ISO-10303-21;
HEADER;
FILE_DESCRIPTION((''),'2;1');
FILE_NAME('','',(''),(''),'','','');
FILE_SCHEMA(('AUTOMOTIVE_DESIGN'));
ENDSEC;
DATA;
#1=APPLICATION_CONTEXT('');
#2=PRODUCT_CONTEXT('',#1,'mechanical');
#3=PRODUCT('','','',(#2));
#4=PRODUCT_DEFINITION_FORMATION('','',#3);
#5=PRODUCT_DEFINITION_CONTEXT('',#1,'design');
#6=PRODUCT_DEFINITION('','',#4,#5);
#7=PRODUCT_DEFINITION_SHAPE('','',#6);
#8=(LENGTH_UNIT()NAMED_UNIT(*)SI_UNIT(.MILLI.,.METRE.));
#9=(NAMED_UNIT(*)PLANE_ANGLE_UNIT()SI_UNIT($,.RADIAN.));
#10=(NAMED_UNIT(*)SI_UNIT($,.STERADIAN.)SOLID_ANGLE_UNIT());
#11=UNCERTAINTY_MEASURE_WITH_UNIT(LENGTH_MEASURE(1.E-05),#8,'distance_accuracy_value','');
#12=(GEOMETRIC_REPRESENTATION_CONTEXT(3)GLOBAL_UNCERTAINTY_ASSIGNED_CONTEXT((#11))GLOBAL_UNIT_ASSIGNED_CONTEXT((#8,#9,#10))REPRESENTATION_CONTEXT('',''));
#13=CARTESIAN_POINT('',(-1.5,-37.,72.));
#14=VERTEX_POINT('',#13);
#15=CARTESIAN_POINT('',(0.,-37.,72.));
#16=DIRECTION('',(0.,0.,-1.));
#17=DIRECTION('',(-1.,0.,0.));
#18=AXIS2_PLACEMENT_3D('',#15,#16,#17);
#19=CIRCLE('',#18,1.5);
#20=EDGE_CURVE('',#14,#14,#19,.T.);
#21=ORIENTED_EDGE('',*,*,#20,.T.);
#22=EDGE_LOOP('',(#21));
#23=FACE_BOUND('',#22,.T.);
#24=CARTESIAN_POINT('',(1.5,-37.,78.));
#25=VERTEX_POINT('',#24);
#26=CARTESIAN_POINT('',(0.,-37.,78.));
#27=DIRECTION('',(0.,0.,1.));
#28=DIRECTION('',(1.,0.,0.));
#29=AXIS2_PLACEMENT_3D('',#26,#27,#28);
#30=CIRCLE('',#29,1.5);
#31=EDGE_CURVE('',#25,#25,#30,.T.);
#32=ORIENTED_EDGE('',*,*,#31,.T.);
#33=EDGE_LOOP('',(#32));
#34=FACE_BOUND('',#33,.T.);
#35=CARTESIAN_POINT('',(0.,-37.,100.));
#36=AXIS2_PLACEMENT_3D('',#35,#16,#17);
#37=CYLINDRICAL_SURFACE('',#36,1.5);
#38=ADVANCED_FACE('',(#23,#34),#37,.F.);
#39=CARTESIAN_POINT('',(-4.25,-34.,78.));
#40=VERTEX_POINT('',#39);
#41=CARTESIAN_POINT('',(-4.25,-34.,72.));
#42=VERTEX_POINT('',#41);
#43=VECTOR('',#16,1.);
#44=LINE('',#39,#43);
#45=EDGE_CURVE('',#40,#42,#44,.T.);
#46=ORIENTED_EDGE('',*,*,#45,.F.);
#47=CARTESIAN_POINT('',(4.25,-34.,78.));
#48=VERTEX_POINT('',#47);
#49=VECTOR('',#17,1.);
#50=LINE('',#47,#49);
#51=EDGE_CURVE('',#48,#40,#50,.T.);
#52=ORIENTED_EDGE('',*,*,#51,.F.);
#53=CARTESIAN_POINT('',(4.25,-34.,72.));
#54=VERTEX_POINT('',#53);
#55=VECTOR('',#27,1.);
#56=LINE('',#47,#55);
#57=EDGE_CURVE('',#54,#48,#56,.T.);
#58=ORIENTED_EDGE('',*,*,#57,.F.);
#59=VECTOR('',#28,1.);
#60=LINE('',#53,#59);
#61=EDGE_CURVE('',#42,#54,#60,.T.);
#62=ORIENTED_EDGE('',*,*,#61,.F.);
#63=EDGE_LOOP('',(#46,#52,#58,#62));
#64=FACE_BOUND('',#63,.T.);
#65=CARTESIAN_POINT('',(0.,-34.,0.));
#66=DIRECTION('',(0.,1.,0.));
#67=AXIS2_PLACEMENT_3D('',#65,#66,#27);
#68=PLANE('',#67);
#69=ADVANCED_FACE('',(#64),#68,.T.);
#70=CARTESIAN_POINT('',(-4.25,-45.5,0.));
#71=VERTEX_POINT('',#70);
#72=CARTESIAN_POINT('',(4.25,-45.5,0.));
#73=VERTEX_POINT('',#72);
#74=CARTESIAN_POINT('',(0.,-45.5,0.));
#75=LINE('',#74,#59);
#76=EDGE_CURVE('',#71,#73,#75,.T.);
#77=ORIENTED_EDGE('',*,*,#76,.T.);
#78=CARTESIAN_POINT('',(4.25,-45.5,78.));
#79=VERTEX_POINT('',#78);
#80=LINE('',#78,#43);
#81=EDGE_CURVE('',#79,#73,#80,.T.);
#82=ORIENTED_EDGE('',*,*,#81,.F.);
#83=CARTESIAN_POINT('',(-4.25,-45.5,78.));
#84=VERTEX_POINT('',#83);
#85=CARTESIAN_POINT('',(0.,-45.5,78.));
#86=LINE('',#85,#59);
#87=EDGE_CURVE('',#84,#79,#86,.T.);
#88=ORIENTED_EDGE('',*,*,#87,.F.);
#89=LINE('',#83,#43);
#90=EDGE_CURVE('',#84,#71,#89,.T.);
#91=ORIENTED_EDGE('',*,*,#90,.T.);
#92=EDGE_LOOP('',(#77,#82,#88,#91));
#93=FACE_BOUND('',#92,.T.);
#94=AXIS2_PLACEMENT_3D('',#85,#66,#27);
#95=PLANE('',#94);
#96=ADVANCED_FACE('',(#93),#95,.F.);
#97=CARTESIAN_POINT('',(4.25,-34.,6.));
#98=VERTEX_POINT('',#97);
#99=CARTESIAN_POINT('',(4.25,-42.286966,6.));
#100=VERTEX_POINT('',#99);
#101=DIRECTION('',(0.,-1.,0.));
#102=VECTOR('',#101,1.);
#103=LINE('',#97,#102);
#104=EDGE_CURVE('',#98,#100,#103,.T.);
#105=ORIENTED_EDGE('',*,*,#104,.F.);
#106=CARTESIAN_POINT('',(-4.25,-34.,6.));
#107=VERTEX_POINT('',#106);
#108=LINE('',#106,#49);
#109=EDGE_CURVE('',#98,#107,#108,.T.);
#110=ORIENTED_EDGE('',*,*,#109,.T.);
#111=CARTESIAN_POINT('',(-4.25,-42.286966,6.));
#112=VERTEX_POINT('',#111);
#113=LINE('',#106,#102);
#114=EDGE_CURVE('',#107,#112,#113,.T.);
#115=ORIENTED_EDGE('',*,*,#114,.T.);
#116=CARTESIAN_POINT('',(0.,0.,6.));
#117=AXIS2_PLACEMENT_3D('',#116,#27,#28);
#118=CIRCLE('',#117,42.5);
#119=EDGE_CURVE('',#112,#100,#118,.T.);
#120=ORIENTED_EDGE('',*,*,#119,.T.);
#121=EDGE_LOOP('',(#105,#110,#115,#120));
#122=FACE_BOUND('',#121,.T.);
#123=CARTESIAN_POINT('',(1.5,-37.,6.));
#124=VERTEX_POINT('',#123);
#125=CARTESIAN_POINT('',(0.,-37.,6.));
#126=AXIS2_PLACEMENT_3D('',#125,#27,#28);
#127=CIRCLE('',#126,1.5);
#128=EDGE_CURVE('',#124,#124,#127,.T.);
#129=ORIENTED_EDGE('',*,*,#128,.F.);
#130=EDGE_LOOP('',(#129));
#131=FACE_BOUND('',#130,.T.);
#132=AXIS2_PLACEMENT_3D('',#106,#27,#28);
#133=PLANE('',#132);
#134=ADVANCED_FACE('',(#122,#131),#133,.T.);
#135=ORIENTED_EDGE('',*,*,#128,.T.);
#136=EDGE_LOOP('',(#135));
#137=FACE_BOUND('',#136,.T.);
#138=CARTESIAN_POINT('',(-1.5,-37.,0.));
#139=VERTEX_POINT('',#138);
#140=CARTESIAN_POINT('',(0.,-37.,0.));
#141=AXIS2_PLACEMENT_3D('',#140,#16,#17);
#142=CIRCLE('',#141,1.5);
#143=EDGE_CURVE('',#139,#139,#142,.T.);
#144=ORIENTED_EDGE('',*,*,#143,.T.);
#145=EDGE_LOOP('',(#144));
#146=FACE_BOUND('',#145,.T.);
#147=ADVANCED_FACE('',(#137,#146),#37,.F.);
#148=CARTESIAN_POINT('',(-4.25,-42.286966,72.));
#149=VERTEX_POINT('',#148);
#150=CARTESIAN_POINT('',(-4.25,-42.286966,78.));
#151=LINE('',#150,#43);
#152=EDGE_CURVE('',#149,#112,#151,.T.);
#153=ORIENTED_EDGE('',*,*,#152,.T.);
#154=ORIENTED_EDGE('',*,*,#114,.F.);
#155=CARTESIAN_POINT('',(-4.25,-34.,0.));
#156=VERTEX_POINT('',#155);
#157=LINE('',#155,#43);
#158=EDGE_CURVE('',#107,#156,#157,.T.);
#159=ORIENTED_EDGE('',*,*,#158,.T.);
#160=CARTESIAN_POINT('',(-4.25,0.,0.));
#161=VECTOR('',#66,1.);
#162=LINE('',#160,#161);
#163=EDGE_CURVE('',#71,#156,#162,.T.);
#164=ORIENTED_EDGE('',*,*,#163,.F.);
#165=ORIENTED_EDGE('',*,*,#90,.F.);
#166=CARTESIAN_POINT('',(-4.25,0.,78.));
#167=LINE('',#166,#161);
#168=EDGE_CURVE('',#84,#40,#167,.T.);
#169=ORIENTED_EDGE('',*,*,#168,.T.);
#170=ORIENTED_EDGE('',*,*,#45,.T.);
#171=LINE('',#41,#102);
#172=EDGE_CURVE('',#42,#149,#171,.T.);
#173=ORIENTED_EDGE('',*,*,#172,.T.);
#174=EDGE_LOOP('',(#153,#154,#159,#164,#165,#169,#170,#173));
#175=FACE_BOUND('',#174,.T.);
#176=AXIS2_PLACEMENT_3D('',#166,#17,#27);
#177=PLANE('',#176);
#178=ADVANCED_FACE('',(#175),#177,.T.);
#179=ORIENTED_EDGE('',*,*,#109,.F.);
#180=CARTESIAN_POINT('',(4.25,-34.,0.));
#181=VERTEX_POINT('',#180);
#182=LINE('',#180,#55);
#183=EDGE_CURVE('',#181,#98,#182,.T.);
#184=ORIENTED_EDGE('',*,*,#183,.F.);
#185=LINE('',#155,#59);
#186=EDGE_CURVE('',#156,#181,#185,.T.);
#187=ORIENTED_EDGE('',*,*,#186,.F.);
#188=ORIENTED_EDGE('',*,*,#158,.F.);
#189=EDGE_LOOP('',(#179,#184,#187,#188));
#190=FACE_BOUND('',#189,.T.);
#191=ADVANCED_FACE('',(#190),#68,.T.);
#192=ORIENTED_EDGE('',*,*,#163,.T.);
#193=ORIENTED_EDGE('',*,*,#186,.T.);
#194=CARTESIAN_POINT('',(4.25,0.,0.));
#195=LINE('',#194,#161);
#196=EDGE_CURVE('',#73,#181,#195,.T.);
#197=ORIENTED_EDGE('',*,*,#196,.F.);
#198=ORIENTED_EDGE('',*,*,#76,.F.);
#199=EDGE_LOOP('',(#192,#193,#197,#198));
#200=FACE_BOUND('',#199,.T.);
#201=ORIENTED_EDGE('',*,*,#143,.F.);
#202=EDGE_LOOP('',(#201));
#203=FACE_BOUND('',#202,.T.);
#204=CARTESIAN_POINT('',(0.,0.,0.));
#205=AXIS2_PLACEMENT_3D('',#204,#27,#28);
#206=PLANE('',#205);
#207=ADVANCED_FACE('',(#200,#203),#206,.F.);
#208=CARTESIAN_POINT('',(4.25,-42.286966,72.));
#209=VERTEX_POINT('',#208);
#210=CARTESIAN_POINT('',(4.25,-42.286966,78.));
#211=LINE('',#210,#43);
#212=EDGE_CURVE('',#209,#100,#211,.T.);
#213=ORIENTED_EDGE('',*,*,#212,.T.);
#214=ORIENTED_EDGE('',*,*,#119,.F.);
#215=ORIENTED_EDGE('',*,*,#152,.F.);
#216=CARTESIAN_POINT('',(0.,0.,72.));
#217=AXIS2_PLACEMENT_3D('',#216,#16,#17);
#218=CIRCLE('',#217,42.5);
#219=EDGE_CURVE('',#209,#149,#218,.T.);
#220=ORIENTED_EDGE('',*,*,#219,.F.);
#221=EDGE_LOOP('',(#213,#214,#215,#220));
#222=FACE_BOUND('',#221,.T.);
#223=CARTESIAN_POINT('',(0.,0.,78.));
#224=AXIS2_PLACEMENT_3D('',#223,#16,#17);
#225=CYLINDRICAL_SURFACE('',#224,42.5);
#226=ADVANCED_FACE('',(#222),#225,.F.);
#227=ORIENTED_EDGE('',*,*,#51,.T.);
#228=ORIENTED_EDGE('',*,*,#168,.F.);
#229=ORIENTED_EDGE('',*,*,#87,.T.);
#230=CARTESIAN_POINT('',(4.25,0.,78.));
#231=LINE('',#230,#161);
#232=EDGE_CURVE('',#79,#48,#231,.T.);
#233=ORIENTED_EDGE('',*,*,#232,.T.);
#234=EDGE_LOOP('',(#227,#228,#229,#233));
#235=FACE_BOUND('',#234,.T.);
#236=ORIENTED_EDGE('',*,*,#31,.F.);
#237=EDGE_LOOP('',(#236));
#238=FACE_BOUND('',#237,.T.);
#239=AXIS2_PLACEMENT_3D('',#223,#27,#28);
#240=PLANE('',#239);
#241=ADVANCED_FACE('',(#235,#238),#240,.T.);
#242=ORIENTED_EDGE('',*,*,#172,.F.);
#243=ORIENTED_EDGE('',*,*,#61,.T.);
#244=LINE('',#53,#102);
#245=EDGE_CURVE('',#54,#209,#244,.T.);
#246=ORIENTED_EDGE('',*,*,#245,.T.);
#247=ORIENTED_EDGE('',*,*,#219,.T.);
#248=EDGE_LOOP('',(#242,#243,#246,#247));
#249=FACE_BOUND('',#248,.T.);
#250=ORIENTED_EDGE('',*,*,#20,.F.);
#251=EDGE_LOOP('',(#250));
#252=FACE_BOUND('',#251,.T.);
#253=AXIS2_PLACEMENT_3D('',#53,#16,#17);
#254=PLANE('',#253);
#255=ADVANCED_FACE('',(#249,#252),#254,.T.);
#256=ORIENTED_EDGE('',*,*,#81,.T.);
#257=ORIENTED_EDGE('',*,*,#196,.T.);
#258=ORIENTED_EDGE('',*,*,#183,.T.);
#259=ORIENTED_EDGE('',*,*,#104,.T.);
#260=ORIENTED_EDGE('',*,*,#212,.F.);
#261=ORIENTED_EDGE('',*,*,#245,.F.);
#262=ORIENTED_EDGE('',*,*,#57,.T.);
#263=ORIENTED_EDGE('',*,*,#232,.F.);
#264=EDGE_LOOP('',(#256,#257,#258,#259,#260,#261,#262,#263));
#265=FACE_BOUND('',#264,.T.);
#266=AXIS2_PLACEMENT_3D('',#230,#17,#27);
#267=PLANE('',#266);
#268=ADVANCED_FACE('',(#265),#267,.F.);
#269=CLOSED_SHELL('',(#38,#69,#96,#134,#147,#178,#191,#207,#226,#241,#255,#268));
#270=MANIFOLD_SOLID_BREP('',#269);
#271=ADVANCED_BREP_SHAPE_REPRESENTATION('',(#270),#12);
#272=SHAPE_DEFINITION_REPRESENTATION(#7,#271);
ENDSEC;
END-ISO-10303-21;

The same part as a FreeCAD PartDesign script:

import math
import FreeCAD as App
import Part
import Sketcher
from FreeCAD import Vector
Q = App.Units.Quantity


def add_polygon(sketch, points):
    """Adds a closed chain of lines whose ends are joined by coincident constraints."""
    first, n = sketch.GeometryCount, len(points)
    for a, b in zip(points, points[1:] + points[:1]):
        sketch.addGeometry(Part.LineSegment(App.Vector(*a, 0), App.Vector(*b, 0)), False)
    for i in range(n):
        sketch.addConstraint(Sketcher.Constraint("Coincident", first + i, 2, first + (i + 1) % n, 1))

doc = App.newDocument("Part")
body = doc.addObject("PartDesign::Body", "Body")

# Sketch on XY plane
sketch1 = doc.addObject("Sketcher::SketchObject", "Sketch")
body.addObject(sketch1)
sketch1.AttachmentSupport = (doc.XY_Plane, [""])
sketch1.MapMode = "FlatFace"
sketch1.addGeometry([
    Part.LineSegment(Vector(-4.25, -45.5, 0), Vector(4.25, -45.5, 0)),
    Part.LineSegment(Vector(4.25, -45.5, 0), Vector(4.25, -42.286966, 0)),
    Part.ArcOfCircle(Part.Circle(Vector(0, 0, 0), Vector(0, 0, 1), 42.5), math.radians(-95.73917), math.radians(-84.26083)),
    Part.LineSegment(Vector(-4.25, -42.286966, 0), Vector(-4.25, -45.5, 0)),
], False)
sketch1.addConstraint([
    Sketcher.Constraint("Coincident", 0, 2, 1, 1),
    Sketcher.Constraint("Coincident", 1, 2, 2, 2),
    Sketcher.Constraint("Coincident", 2, 1, 3, 1),
    Sketcher.Constraint("Coincident", 3, 2, 0, 1),
    Sketcher.Constraint("Horizontal", 0),
    Sketcher.Constraint("Vertical", 1),
    Sketcher.Constraint("Vertical", 3),
    Sketcher.Constraint("Coincident", 2, 3, -1, 1),
    Sketcher.Constraint("Horizontal", 1, 2, 2, 1),
    Sketcher.Constraint("Radius", 2, Q("42.5 mm")),
    Sketcher.Constraint("DistanceX", 0, 1, 0, 2, Q("8.5 mm")),
    Sketcher.Constraint("DistanceY", 0, 2, -1, 1, Q("45.5 mm")),
])
pad1 = doc.addObject("PartDesign::Pad", "Pad")
body.addObject(pad1)
pad1.Profile = sketch1
pad1.Length = 78

# Sketch on XZ plane
sketch2 = doc.addObject("Sketcher::SketchObject", "Sketch001")
body.addObject(sketch2)
sketch2.AttachmentSupport = (doc.XZ_Plane, [""])
sketch2.MapMode = "FlatFace"
sketch2.AttachmentOffset = App.Placement(Vector(0, 0, 42.5), App.Rotation())
add_polygon(sketch2, [(4.25, 72), (4.25, 78), (-4.25, 78), (-4.25, 72)])  # lines 0-3
add_polygon(sketch2, [(4.25, 0), (4.25, 6), (-4.25, 6), (-4.25, 0)])  # lines 4-7
sketch2.addConstraint([
    Sketcher.Constraint("Vertical", 0),
    Sketcher.Constraint("Horizontal", 1),
    Sketcher.Constraint("Vertical", 2),
    Sketcher.Constraint("Horizontal", 3),
    Sketcher.Constraint("Vertical", 4),
    Sketcher.Constraint("Horizontal", 5),
    Sketcher.Constraint("Vertical", 6),
    Sketcher.Constraint("Horizontal", 7),
    Sketcher.Constraint("Symmetric", 6, 2, 7, 2, -1, 1),
    Sketcher.Constraint("Vertical", 3, 2, 4, 2),
    Sketcher.Constraint("Vertical", 2, 2, 5, 2),
    Sketcher.Constraint("Equal", 2, 4),
    Sketcher.Constraint("DistanceY", 0, 1, 0, 2, Q("6 mm")),
    Sketcher.Constraint("DistanceX", 1, 2, 1, 1, Q("8.5 mm")),
    Sketcher.Constraint("DistanceY", -1, 1, 0, 2, Q("78 mm")),
])
pad2 = doc.addObject("PartDesign::Pad", "Pad001")
body.addObject(pad2)
pad2.Profile = sketch2
pad2.Length = 8.5
pad2.Reversed = True

# Sketch on XY plane
sketch3 = doc.addObject("Sketcher::SketchObject", "Sketch002")
body.addObject(sketch3)
sketch3.AttachmentSupport = (doc.XY_Plane, [""])
sketch3.MapMode = "FlatFace"
sketch3.addGeometry(Part.Circle(Vector(0, -37, 0), Vector(0, 0, 1), 1.5), False)
sketch3.addConstraint([
    Sketcher.Constraint("PointOnObject", 0, 3, -2),
    Sketcher.Constraint("Diameter", 0, Q("3 mm")),
    Sketcher.Constraint("DistanceY", 0, 3, -1, 1, Q("37 mm")),
])
pocket1 = doc.addObject("PartDesign::Pocket", "Pocket")
body.addObject(pocket1)
pocket1.Profile = sketch3
pocket1.Length = 100
pocket1.Reversed = True

doc.recompute()
